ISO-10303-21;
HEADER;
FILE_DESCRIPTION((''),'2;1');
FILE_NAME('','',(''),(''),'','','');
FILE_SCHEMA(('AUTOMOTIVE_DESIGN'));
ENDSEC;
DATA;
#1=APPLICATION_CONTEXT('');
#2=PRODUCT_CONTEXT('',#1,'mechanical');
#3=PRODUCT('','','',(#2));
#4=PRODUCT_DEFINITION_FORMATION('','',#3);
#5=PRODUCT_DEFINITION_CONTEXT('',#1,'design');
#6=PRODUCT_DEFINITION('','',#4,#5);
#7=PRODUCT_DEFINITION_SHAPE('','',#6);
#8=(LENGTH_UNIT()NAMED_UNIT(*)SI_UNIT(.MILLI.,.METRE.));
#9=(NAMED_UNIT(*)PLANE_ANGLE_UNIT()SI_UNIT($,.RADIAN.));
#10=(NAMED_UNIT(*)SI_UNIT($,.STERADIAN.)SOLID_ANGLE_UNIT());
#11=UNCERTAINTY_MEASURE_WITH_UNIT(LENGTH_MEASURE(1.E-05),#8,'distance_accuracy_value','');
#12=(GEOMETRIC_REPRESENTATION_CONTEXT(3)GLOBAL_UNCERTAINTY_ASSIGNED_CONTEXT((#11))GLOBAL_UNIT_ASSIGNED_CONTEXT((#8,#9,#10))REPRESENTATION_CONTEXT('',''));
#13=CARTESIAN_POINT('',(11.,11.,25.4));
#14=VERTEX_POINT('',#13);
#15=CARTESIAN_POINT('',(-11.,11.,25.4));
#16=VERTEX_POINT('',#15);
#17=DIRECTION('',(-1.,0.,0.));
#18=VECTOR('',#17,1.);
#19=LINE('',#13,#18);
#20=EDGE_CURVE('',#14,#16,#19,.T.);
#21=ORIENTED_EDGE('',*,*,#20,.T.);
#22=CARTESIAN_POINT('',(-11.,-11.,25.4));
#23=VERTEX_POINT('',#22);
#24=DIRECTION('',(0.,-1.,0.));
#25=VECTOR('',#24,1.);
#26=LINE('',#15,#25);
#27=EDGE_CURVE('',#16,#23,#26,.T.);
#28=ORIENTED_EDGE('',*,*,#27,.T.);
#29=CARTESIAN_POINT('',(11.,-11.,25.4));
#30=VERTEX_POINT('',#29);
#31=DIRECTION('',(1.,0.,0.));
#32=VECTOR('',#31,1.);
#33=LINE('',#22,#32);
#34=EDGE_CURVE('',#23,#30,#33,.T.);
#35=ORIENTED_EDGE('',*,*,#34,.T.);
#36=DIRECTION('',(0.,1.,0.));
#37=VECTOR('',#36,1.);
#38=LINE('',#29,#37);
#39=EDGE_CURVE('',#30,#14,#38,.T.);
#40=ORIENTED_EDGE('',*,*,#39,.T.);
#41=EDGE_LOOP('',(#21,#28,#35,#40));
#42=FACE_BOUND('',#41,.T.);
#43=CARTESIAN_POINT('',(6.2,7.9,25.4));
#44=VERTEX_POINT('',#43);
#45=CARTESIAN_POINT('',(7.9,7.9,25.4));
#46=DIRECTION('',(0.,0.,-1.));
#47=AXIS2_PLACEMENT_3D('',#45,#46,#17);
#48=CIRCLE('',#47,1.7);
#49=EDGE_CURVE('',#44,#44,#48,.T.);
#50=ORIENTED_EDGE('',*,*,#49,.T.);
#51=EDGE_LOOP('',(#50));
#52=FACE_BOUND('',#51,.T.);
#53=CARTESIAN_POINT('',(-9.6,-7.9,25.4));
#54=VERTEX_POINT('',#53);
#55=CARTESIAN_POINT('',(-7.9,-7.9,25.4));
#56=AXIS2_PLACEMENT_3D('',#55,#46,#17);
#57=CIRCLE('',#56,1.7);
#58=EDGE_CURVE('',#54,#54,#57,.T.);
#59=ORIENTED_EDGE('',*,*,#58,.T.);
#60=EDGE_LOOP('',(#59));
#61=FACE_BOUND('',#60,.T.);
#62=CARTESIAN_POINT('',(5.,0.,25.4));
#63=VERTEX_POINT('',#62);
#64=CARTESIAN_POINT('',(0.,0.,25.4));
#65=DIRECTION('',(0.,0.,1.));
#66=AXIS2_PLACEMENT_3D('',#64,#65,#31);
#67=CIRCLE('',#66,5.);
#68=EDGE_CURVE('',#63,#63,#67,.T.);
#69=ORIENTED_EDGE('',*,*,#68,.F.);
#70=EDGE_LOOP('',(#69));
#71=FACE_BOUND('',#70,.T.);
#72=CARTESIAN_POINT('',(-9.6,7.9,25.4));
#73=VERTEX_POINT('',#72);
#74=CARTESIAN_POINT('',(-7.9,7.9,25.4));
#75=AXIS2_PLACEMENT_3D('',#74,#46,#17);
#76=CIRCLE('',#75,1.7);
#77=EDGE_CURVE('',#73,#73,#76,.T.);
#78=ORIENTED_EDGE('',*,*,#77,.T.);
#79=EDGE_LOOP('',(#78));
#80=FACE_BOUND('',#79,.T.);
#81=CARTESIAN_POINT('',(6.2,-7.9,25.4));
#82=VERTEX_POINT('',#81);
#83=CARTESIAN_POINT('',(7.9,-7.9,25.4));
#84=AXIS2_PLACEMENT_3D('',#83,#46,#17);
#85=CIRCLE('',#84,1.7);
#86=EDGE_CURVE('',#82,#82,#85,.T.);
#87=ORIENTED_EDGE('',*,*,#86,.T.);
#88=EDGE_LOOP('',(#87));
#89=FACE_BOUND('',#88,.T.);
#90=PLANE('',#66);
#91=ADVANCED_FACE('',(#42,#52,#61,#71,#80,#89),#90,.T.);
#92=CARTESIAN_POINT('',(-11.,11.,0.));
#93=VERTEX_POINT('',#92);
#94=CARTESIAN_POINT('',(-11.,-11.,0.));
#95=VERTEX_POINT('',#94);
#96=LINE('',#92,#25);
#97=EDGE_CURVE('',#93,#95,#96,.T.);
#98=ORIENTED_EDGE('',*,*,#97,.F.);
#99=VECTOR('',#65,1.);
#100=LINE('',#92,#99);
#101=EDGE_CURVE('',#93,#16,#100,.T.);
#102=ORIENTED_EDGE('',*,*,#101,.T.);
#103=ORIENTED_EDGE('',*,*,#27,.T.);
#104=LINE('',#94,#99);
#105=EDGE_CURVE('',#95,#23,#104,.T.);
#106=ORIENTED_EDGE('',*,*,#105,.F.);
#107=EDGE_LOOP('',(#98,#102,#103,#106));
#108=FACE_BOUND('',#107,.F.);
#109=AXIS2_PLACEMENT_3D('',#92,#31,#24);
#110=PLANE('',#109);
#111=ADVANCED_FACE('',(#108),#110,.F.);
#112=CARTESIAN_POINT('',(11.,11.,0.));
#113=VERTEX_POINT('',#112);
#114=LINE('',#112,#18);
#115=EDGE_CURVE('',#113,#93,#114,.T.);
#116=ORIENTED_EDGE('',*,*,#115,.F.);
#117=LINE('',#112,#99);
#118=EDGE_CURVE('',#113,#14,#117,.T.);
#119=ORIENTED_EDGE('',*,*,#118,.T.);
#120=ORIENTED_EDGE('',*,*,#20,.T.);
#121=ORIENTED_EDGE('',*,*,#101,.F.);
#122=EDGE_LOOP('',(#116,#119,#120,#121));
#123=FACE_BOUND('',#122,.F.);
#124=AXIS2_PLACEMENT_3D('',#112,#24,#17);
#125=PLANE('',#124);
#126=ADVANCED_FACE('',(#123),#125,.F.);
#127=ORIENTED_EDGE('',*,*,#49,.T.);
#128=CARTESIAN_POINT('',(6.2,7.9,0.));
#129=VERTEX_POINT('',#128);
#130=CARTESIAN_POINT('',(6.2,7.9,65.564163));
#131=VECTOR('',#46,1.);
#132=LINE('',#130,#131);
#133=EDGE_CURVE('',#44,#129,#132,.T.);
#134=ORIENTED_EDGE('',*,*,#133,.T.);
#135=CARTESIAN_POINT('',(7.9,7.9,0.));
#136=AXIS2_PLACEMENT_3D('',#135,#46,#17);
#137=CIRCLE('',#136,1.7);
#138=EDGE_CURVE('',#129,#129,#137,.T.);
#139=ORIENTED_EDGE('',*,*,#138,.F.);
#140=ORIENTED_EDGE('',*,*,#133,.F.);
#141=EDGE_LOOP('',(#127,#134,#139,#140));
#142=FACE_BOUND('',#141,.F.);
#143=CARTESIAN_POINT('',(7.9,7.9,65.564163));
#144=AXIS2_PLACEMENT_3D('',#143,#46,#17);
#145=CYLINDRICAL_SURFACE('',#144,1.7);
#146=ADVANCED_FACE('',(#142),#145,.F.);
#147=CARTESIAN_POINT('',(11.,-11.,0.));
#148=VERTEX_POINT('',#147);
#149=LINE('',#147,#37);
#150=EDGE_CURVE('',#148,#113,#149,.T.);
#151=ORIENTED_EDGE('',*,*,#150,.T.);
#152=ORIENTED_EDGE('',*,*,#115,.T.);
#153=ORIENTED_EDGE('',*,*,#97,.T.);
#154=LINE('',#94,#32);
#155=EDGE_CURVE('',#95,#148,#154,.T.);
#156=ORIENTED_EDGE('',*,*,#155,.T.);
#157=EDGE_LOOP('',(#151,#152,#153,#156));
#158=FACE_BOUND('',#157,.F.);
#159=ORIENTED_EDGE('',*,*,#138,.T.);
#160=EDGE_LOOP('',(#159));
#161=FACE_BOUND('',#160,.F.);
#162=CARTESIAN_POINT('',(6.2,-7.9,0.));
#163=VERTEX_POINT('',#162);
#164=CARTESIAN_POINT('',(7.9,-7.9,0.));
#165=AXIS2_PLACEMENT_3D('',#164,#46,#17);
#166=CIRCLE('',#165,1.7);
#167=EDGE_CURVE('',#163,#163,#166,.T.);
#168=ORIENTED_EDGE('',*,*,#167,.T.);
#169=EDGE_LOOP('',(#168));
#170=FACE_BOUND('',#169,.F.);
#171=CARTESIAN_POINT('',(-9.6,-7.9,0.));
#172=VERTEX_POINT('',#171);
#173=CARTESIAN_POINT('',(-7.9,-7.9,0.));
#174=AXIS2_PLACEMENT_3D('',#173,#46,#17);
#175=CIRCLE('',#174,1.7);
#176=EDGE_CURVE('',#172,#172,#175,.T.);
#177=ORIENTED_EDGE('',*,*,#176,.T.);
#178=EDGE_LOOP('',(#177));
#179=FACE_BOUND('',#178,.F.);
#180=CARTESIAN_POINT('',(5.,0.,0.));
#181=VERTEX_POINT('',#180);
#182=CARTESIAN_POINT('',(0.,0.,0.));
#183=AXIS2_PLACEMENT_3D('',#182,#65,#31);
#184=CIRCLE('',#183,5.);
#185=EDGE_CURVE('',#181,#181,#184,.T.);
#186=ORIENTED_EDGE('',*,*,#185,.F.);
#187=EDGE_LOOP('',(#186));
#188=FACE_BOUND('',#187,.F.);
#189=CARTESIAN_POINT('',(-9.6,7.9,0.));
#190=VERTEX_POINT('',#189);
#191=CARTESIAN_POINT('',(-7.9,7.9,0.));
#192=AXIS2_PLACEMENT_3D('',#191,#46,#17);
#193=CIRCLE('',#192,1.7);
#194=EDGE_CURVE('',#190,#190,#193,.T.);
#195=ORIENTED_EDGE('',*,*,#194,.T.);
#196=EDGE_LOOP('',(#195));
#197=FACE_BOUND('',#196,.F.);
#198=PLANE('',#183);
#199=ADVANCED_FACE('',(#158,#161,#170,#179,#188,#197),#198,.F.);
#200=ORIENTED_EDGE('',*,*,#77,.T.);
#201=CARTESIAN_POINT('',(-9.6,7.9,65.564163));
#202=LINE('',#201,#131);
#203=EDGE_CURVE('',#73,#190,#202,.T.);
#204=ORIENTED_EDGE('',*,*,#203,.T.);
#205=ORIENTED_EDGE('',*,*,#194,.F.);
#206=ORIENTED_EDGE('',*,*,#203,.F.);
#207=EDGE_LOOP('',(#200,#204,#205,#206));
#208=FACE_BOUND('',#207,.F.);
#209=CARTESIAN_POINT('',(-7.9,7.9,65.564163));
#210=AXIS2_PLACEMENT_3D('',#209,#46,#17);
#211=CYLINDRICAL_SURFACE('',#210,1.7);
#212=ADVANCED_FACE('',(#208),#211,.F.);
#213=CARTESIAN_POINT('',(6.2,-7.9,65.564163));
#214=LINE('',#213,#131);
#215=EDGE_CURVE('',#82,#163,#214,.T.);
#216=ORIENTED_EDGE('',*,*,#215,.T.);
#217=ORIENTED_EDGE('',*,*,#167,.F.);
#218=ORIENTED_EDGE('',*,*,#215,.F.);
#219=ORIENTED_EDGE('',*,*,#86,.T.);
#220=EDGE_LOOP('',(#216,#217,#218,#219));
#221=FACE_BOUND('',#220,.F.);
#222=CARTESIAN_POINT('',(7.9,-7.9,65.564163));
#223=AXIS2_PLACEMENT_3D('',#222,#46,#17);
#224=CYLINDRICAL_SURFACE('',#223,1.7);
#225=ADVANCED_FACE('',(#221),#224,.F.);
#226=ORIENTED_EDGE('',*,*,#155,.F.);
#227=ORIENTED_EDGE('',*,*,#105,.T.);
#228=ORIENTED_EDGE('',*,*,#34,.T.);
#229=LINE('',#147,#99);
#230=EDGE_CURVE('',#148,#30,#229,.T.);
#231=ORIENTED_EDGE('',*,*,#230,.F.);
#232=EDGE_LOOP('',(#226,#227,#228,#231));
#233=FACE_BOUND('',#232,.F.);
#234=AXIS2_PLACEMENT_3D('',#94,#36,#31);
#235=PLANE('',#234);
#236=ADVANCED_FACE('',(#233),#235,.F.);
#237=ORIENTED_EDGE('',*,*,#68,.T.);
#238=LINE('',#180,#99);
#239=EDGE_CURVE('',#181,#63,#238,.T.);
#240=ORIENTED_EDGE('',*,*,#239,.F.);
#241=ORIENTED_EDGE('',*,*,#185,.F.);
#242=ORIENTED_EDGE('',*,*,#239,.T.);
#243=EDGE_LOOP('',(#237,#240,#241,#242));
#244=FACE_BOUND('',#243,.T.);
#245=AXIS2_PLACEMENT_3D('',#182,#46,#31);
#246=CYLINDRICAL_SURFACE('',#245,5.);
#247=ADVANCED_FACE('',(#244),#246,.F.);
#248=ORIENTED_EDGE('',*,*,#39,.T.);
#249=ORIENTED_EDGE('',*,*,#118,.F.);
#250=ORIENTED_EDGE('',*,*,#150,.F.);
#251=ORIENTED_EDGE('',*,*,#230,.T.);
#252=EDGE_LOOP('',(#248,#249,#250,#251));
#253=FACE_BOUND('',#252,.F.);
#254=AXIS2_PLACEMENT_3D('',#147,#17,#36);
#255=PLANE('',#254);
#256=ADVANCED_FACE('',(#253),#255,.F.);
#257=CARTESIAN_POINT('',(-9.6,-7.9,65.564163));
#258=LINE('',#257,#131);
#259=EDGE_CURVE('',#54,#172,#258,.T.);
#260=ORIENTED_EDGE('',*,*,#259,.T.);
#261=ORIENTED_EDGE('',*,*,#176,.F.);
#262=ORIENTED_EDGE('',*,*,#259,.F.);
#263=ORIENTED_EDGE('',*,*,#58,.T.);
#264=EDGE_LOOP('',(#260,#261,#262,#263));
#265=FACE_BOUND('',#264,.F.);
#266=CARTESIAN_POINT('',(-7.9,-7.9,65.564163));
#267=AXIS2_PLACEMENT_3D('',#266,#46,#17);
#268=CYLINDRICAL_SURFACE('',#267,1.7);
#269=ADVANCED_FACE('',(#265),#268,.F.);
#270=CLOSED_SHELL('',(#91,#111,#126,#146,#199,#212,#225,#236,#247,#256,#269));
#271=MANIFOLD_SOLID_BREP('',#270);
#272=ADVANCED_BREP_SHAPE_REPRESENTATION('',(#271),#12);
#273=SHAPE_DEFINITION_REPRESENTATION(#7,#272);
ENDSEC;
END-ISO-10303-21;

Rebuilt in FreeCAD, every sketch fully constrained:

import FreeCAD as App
import Part
import Sketcher
from FreeCAD import Vector


def add_polygon(sketch, points):
    """Adds a closed chain of lines whose ends are joined by coincident constraints."""
    first, n = sketch.GeometryCount, len(points)
    for a, b in zip(points, points[1:] + points[:1]):
        sketch.addGeometry(Part.LineSegment(App.Vector(*a, 0), App.Vector(*b, 0)), False)
    for i in range(n):
        sketch.addConstraint(Sketcher.Constraint("Coincident", first + i, 2, first + (i + 1) % n, 1))

doc = App.newDocument("Part")
body = doc.addObject("PartDesign::Body", "Body")

# Sketch on XY plane
sketch1 = body.newObject("Sketcher::SketchObject", "Sketch")
sketch1.AttachmentSupport = (doc.getObject("XY_Plane"), [""])
sketch1.MapMode = "FlatFace"
add_polygon(sketch1, [(11, -11), (11, 11), (-11, 11), (-11, -11)])  # lines 0-3
sketch1.addGeometry(Part.Circle(Vector(0, 0, 0), Vector(0, 0, 1), 5), False)  # 4
sketch1.addConstraint(Sketcher.Constraint("Vertical", 0))
sketch1.addConstraint(Sketcher.Constraint("Horizontal", 1))
sketch1.addConstraint(Sketcher.Constraint("Vertical", 2))
sketch1.addConstraint(Sketcher.Constraint("Horizontal", 3))
sketch1.addConstraint(Sketcher.Constraint("Coincident", 4, 3, -1, 1))
sketch1.addConstraint(Sketcher.Constraint("Symmetric", 0, 2, 2, 2, -1, 1))
sketch1.addConstraint(Sketcher.Constraint("Equal", 3, 0))
sketch1.addConstraint(Sketcher.Constraint("Diameter", 4, 10.0))
sketch1.addConstraint(Sketcher.Constraint("DistanceX", 1, 2, 1, 1, 22.0))
pad1 = body.newObject("PartDesign::Pad", "Pad")
pad1.Profile = sketch1
pad1.Length = 25.4

# Sketch on XY plane
sketch2 = body.newObject("Sketcher::SketchObject", "Sketch001")
sketch2.AttachmentSupport = (doc.getObject("XY_Plane"), [""])
sketch2.MapMode = "FlatFace"
sketch2.AttachmentOffset = App.Placement(Vector(0, 0, 25.4), App.Rotation())
sketch2.addGeometry(Part.Circle(Vector(-7.9, 7.9, 0), Vector(0, 0, 1), 1.7), False)
sketch2.addGeometry(Part.Circle(Vector(-7.9, -7.9, 0), Vector(0, 0, 1), 1.7), False)
sketch2.addGeometry(Part.Circle(Vector(7.9, 7.9, 0), Vector(0, 0, 1), 1.7), False)
sketch2.addGeometry(Part.Circle(Vector(7.9, -7.9, 0), Vector(0, 0, 1), 1.7), False)
sketch2.addConstraint(Sketcher.Constraint("Equal", 0, 1))
sketch2.addConstraint(Sketcher.Constraint("Equal", 1, 2))
sketch2.addConstraint(Sketcher.Constraint("Equal", 2, 3))
sketch2.addConstraint(Sketcher.Constraint("Symmetric", 1, 3, 2, 3, -1, 1))
sketch2.addConstraint(Sketcher.Constraint("Symmetric", 0, 3, 3, 3, -1, 1))
sketch2.addConstraint(Sketcher.Constraint("Symmetric", 0, 3, 2, 3, -2))
sketch2.addConstraint(Sketcher.Constraint("Diameter", 0, 3.4))
sketch2.addConstraint(Sketcher.Constraint("DistanceX", 0, 3, -1, 1, 7.9))
sketch2.addConstraint(Sketcher.Constraint("DistanceY", -1, 1, 0, 3, 7.9))
doc.recompute()
hole = body.newObject("PartDesign::Hole", "Hole")
hole.Profile = sketch2
hole.ThreadType = "None"
hole.Diameter = 3.4
hole.DepthType = "ThroughAll"

doc.recompute()
